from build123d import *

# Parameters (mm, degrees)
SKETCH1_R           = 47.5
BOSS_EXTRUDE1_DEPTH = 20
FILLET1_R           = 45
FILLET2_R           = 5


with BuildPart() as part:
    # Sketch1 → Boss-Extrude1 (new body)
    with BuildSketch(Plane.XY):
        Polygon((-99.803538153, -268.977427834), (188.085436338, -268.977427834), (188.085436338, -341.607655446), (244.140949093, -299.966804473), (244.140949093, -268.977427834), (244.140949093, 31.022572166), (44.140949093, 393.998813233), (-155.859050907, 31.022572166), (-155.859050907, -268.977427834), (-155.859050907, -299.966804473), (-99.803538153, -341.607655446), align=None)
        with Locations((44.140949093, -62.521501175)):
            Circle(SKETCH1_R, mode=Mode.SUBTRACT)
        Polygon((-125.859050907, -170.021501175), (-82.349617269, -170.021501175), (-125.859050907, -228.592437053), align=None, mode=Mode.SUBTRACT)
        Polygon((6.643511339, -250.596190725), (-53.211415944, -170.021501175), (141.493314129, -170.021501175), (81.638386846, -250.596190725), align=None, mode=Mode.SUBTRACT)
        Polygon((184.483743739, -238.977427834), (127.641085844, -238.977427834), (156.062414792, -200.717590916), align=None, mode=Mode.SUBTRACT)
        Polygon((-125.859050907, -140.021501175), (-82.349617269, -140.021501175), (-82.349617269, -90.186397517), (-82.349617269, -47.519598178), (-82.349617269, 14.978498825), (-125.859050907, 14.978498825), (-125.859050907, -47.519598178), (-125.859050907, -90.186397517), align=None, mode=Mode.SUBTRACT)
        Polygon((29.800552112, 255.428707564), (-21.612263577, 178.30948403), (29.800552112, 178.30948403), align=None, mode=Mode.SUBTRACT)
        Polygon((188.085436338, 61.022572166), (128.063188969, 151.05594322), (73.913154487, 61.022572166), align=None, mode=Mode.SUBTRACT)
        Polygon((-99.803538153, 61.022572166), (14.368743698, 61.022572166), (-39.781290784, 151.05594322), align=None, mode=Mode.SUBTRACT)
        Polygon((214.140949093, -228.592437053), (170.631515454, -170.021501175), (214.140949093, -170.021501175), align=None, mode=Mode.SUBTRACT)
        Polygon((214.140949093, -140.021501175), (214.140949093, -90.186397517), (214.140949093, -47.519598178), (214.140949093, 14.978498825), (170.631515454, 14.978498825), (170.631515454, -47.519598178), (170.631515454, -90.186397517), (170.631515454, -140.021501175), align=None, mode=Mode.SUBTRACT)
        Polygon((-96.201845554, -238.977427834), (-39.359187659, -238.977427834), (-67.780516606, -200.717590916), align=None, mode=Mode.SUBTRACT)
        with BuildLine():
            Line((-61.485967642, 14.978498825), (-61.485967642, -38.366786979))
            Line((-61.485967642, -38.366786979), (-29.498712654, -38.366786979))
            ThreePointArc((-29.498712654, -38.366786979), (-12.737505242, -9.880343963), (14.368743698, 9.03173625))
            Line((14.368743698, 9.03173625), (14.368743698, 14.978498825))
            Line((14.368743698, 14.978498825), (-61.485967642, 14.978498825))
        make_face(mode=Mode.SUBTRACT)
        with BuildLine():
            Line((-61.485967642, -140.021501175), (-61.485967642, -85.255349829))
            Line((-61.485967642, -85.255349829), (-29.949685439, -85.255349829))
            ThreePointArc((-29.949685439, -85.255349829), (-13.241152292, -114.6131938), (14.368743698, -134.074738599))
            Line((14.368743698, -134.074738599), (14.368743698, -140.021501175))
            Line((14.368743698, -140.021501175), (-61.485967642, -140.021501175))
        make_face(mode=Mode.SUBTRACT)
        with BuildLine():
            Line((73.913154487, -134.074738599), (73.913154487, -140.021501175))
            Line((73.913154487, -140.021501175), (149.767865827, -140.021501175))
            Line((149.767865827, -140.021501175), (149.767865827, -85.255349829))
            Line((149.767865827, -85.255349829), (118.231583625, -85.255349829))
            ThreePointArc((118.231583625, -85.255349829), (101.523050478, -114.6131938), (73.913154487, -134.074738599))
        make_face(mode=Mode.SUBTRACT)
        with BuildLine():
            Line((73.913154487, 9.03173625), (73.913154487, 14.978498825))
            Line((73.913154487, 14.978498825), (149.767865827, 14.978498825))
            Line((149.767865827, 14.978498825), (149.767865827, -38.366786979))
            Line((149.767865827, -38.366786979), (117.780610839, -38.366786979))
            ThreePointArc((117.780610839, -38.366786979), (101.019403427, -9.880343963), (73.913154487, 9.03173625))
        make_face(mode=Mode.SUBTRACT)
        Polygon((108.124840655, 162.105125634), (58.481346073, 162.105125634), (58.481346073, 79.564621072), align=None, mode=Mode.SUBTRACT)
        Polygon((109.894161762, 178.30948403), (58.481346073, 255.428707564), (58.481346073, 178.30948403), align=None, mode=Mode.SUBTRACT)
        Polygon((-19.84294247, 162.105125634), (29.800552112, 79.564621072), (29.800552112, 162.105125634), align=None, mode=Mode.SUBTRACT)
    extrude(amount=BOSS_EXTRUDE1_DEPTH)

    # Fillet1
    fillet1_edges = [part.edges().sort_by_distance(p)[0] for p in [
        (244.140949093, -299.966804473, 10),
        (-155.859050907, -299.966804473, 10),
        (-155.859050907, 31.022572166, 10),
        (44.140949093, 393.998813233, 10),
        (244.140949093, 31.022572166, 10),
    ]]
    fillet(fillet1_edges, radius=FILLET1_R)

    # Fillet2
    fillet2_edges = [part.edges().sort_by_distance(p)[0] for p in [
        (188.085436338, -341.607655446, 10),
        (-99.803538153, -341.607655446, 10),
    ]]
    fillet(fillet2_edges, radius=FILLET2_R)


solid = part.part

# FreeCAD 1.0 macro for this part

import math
import FreeCAD as App
import Part
import Sketcher
Q = App.Units.Quantity


def edges_at(feature, points):
    """Names of the edges that pass closest to the given points."""
    edges = feature.Shape.Edges
    near = lambda p: min(range(len(edges)), key=lambda i: edges[i].distToShape(Part.Vertex(*p))[0])
    return sorted({f"Edge{near(p) + 1}" for p in points})


def add_polygon(sketch, points):
    """Adds a closed chain of lines whose ends are joined by coincident constraints."""
    first, n = sketch.GeometryCount, len(points)
    for a, b in zip(points, points[1:] + points[:1]):
        sketch.addGeometry(Part.LineSegment(App.Vector(*a, 0), App.Vector(*b, 0)), False)
    for i in range(n):
        sketch.addConstraint(Sketcher.Constraint("Coincident", first + i, 2, first + (i + 1) % n, 1))

doc = App.newDocument("Part")
body = doc.addObject("PartDesign::Body", "Body")

# Sketch on XY plane
sketch1 = doc.addObject("Sketcher::SketchObject", "Sketch")
body.addObject(sketch1)
sketch1.AttachmentSupport = (doc.XY_Plane, [""])
sketch1.MapMode = "FlatFace"
add_polygon(sketch1, [(-100, -269), (188, -269), (188, -342), (244, -300), (244, 31), (44, 394), (-156, 31), (-156, -300), (-100, -342)])  # lines 0-8
add_polygon(sketch1, [(-126, -229), (-126, -170), (-82, -170)])  # lines 9-11
add_polygon(sketch1, [(-39, -239), (-96, -239), (-68, -201)])  # lines 12-14
add_polygon(sketch1, [(82, -251), (7, -251), (-53, -170), (141, -170)])  # lines 15-18
add_polygon(sketch1, [(-82, -140), (-126, -140), (-126, 15), (-82, 15)])  # lines 19-22
sketch1.addGeometry(Part.LineSegment(App.Vector(14, -140, 0), App.Vector(-61, -140, 0)), False)  # 23
sketch1.addGeometry(Part.LineSegment(App.Vector(-61, -140, 0), App.Vector(-61, -85, 0)), False)  # 24
sketch1.addGeometry(Part.LineSegment(App.Vector(-61, -85, 0), App.Vector(-30, -85, 0)), False)  # 25
sketch1.addGeometry(Part.ArcOfCircle(Part.Circle(App.Vector(44, -63, 0), App.Vector(0, 0, 1), 78), math.radians(-163), math.radians(-113)), False)  # 26
sketch1.addGeometry(Part.LineSegment(App.Vector(14, -134, 0), App.Vector(14, -140, 0)), False)  # 27
sketch1.addGeometry(Part.LineSegment(App.Vector(-61, -38, 0), App.Vector(-61, 15, 0)), False)  # 28
sketch1.addGeometry(Part.LineSegment(App.Vector(-61, 15, 0), App.Vector(14, 15, 0)), False)  # 29
sketch1.addGeometry(Part.LineSegment(App.Vector(14, 15, 0), App.Vector(14, 9, 0)), False)  # 30
sketch1.addGeometry(Part.ArcOfCircle(Part.Circle(App.Vector(44, -63, 0), App.Vector(0, 0, 1), 77), math.radians(113), math.radians(162)), False)  # 31
sketch1.addGeometry(Part.LineSegment(App.Vector(-29, -38, 0), App.Vector(-61, -38, 0)), False)  # 32
add_polygon(sketch1, [(156, -201), (184, -239), (128, -239)])  # lines 33-35
add_polygon(sketch1, [(214, -170), (214, -229), (171, -170)])  # lines 36-38
sketch1.addGeometry(Part.Circle(App.Vector(44, -63, 0), App.Vector(0, 0, 1), 48), False)  # 39
sketch1.addGeometry(Part.LineSegment(App.Vector(74, -140, 0), App.Vector(74, -134, 0)), False)  # 40
sketch1.addGeometry(Part.ArcOfCircle(Part.Circle(App.Vector(44, -63, 0), App.Vector(0, 0, 1), 78), math.radians(-67), math.radians(-17)), False)  # 41
sketch1.addGeometry(Part.LineSegment(App.Vector(118, -85, 0), App.Vector(150, -85, 0)), False)  # 42
sketch1.addGeometry(Part.LineSegment(App.Vector(150, -85, 0), App.Vector(150, -140, 0)), False)  # 43
sketch1.addGeometry(Part.LineSegment(App.Vector(150, -140, 0), App.Vector(74, -140, 0)), False)  # 44
sketch1.addGeometry(Part.ArcOfCircle(Part.Circle(App.Vector(44, -63, 0), App.Vector(0, 0, 1), 77), math.radians(18), math.radians(67)), False)  # 45
sketch1.addGeometry(Part.LineSegment(App.Vector(74, 9, 0), App.Vector(74, 15, 0)), False)  # 46
sketch1.addGeometry(Part.LineSegment(App.Vector(74, 15, 0), App.Vector(150, 15, 0)), False)  # 47
sketch1.addGeometry(Part.LineSegment(App.Vector(150, 15, 0), App.Vector(150, -38, 0)), False)  # 48
sketch1.addGeometry(Part.LineSegment(App.Vector(150, -38, 0), App.Vector(118, -38, 0)), False)  # 49
add_polygon(sketch1, [(214, 15), (214, -140), (171, -140), (171, 15)])  # lines 50-53
add_polygon(sketch1, [(14, 61), (-100, 61), (-40, 151)])  # lines 54-56
add_polygon(sketch1, [(30, 80), (-20, 162), (30, 162)])  # lines 57-59
add_polygon(sketch1, [(-22, 178), (30, 255), (30, 178)])  # lines 60-62
add_polygon(sketch1, [(58, 162), (108, 162), (58, 80)])  # lines 63-65
add_polygon(sketch1, [(128, 151), (188, 61), (74, 61)])  # lines 66-68
add_polygon(sketch1, [(58, 255), (110, 178), (58, 178)])  # lines 69-71
sketch1.addConstraint([
    Sketcher.Constraint("Coincident", 23, 2, 24, 1),
    Sketcher.Constraint("Coincident", 24, 2, 25, 1),
    Sketcher.Constraint("Coincident", 25, 2, 26, 1),
    Sketcher.Constraint("Coincident", 26, 2, 27, 1),
    Sketcher.Constraint("Coincident", 27, 2, 23, 1),
    Sketcher.Constraint("Coincident", 28, 2, 29, 1),
    Sketcher.Constraint("Coincident", 29, 2, 30, 1),
    Sketcher.Constraint("Coincident", 30, 2, 31, 1),
    Sketcher.Constraint("Coincident", 31, 2, 32, 1),
    Sketcher.Constraint("Coincident", 32, 2, 28, 1),
    Sketcher.Constraint("Coincident", 40, 2, 41, 1),
    Sketcher.Constraint("Coincident", 41, 2, 42, 1),
    Sketcher.Constraint("Coincident", 42, 2, 43, 1),
    Sketcher.Constraint("Coincident", 43, 2, 44, 1),
    Sketcher.Constraint("Coincident", 44, 2, 40, 1),
    Sketcher.Constraint("Coincident", 45, 2, 46, 1),
    Sketcher.Constraint("Coincident", 46, 2, 47, 1),
    Sketcher.Constraint("Coincident", 47, 2, 48, 1),
    Sketcher.Constraint("Coincident", 48, 2, 49, 1),
    Sketcher.Constraint("Coincident", 49, 2, 45, 1),
    Sketcher.Constraint("Horizontal", 0),
    Sketcher.Constraint("Vertical", 1),
    Sketcher.Constraint("Vertical", 3),
    Sketcher.Constraint("Vertical", 6),
    Sketcher.Constraint("Vertical", 8),
    Sketcher.Constraint("Vertical", 9),
    Sketcher.Constraint("Horizontal", 10),
    Sketcher.Constraint("Horizontal", 12),
    Sketcher.Constraint("Horizontal", 15),
    Sketcher.Constraint("Horizontal", 17),
    Sketcher.Constraint("Horizontal", 19),
    Sketcher.Constraint("Vertical", 20),
    Sketcher.Constraint("Horizontal", 21),
    Sketcher.Constraint("Vertical", 22),
    Sketcher.Constraint("Horizontal", 23),
    Sketcher.Constraint("Vertical", 24),
    Sketcher.Constraint("Horizontal", 25),
    Sketcher.Constraint("Vertical", 27),
    Sketcher.Constraint("Vertical", 28),
    Sketcher.Constraint("Horizontal", 29),
    Sketcher.Constraint("Vertical", 30),
    Sketcher.Constraint("Horizontal", 32),
    Sketcher.Constraint("Horizontal", 34),
    Sketcher.Constraint("Vertical", 36),
    Sketcher.Constraint("Horizontal", 38),
    Sketcher.Constraint("Vertical", 40),
    Sketcher.Constraint("Horizontal", 42),
    Sketcher.Constraint("Vertical", 43),
    Sketcher.Constraint("Horizontal", 44),
    Sketcher.Constraint("Vertical", 46),
    Sketcher.Constraint("Horizontal", 47),
    Sketcher.Constraint("Vertical", 48),
    Sketcher.Constraint("Horizontal", 49),
    Sketcher.Constraint("Vertical", 50),
    Sketcher.Constraint("Horizontal", 51),
    Sketcher.Constraint("Vertical", 52),
    Sketcher.Constraint("Horizontal", 53),
    Sketcher.Constraint("Horizontal", 54),
    Sketcher.Constraint("Horizontal", 58),
    Sketcher.Constraint("Vertical", 59),
    Sketcher.Constraint("Vertical", 61),
    Sketcher.Constraint("Horizontal", 62),
    Sketcher.Constraint("Horizontal", 63),
    Sketcher.Constraint("Vertical", 65),
    Sketcher.Constraint("Horizontal", 67),
    Sketcher.Constraint("Horizontal", 70),
    Sketcher.Constraint("Vertical", 71),
    Sketcher.Constraint("Coincident", 31, 3, 26, 3),
    Sketcher.Constraint("Coincident", 39, 3, 26, 3),
    Sketcher.Constraint("Coincident", 41, 3, 26, 3),
    Sketcher.Constraint("Coincident", 45, 3, 26, 3),
    Sketcher.Constraint("Equal", 26, 31),
    Sketcher.Constraint("Equal", 31, 41),
    Sketcher.Constraint("Equal", 41, 45),
    Sketcher.Constraint("Perpendicular", 7, 11),
    Sketcher.Constraint("Parallel", 11, 13),
    Sketcher.Constraint("Perpendicular", 2, 14),
    Sketcher.Constraint("Parallel", 14, 16),
    Sketcher.Constraint("Parallel", 13, 18),
    Sketcher.Constraint("Parallel", 16, 33),
    Sketcher.Constraint("Parallel", 18, 35),
    Sketcher.Constraint("Parallel", 33, 37),
    Sketcher.Constraint("Parallel", 56, 57),
    Sketcher.Constraint("Parallel", 55, 60),
    Sketcher.Constraint("Parallel", 64, 68),
    Sketcher.Constraint("Parallel", 66, 69),
    Sketcher.Constraint("Horizontal", 3, 2, 5, 2),
    Sketcher.Constraint("Horizontal", 2, 2, 6, 2),
    Sketcher.Constraint("Horizontal", 1, 2, 7, 2),
    Sketcher.Constraint("Horizontal", 10, 2, 16, 2),
    Sketcher.Constraint("Horizontal", 22, 2, 23, 2),
    Sketcher.Constraint("Horizontal", 21, 2, 28, 2),
    Sketcher.Constraint("Horizontal", 14, 2, 33, 2),
    Sketcher.Constraint("Horizontal", 13, 2, 35, 2),
    Sketcher.Constraint("Horizontal", 11, 2, 36, 2),
    Sketcher.Constraint("Horizontal", 17, 2, 37, 2),
    Sketcher.Constraint("Horizontal", 26, 2, 40, 2),
    Sketcher.Constraint("Horizontal", 25, 2, 41, 2),
    Sketcher.Constraint("Horizontal", 27, 2, 43, 2),
    Sketcher.Constraint("Horizontal", 30, 2, 45, 2),
    Sketcher.Constraint("Horizontal", 29, 2, 46, 2),
    Sketcher.Constraint("Horizontal", 32, 2, 48, 2),
    Sketcher.Constraint("Horizontal", 44, 2, 50, 2),
    Sketcher.Constraint("Horizontal", 47, 2, 52, 2),
    Sketcher.Constraint("Horizontal", 58, 2, 63, 2),
    Sketcher.Constraint("Horizontal", 59, 2, 64, 2),
    Sketcher.Constraint("Horizontal", 56, 2, 66, 2),
    Sketcher.Constraint("Horizontal", 55, 2, 68, 2),
    Sketcher.Constraint("Horizontal", 62, 2, 69, 2),
    Sketcher.Constraint("Horizontal", 60, 2, 71, 2),
    Sketcher.Constraint("Vertical", 45, 3, 4, 2),
    Sketcher.Constraint("Vertical", 11, 2, 19, 2),
    Sketcher.Constraint("Vertical", 10, 2, 21, 2),
    Sketcher.Constraint("Vertical", 24, 2, 28, 2),
    Sketcher.Constraint("Vertical", 27, 2, 29, 2),
    Sketcher.Constraint("Vertical", 43, 2, 47, 2),
    Sketcher.Constraint("Vertical", 38, 2, 50, 2),
    Sketcher.Constraint("Vertical", 37, 2, 51, 2),
    Sketcher.Constraint("Vertical", 8, 2, 54, 2),
    Sketcher.Constraint("Vertical", 30, 2, 56, 2),
    Sketcher.Constraint("Vertical", 59, 2, 60, 2),
    Sketcher.Constraint("Vertical", 1, 2, 66, 2),
    Sketcher.Constraint("Vertical", 46, 2, 67, 2),
    Sketcher.Constraint("Vertical", 65, 2, 70, 2),
    Sketcher.Constraint("Equal", 21, 38),
    Sketcher.Constraint("Equal", 25, 42),
    Sketcher.Constraint("Equal", 58, 63),
    Sketcher.Constraint("Equal", 54, 67),
    Sketcher.Constraint("Equal", 27, 30),
    Sketcher.Constraint("Diameter", 39, Q("95 mm")),
    Sketcher.Constraint("Radius", 26, Q("77.5 mm")),
    Sketcher.Constraint("DistanceY", 20, 1, 20, 2, Q("155 mm")),
    Sketcher.Constraint("Distance", 56, Q("105.063001 mm")),
    Sketcher.Constraint("DistanceX", 17, 1, 17, 2, Q("194.70473 mm")),
    Sketcher.Constraint("DistanceX", 23, 2, 23, 1, Q("75.854711 mm")),
    Sketcher.Constraint("DistanceX", 54, 2, 54, 1, Q("114.172282 mm")),
    Sketcher.Constraint("DistanceY", 24, 1, 24, 2, Q("54.766151 mm")),
    Sketcher.Constraint("DistanceY", 26, 3, -1, 1, Q("62.521501 mm")),
    Sketcher.Constraint("DistanceY", 9, 2, -1, 1, Q("170.021501 mm")),
    Sketcher.Constraint("Distance", 4, Q("414.429429 mm")),
    Sketcher.Constraint("Distance", 11, Q("72.963178 mm")),
    Sketcher.Constraint("Distance", 13, Q("47.661169 mm")),
    Sketcher.Constraint("Distance", 57, Q("96.31932 mm")),
    Sketcher.Constraint("Distance", 60, Q("92.685772 mm")),
    Sketcher.Constraint("DistanceX", 0, 1, 0, 2, Q("287.888974 mm")),
    Sketcher.Constraint("DistanceX", 10, 1, 10, 2, Q("43.509434 mm")),
    Sketcher.Constraint("DistanceX", 15, 2, 15, 1, Q("74.994876 mm")),
    Sketcher.Constraint("DistanceX", 32, 2, 32, 1, Q("31.987255 mm")),
    Sketcher.Constraint("DistanceX", 58, 1, 58, 2, Q("49.643495 mm")),
    Sketcher.Constraint("DistanceY", 1, 2, 1, 1, Q("72.630228 mm")),
    Sketcher.Constraint("DistanceY", 3, 1, 3, 2, Q("330.989377 mm")),
    Sketcher.Constraint("DistanceX", -1, 1, 26, 3, Q("44.140949 mm")),
    Sketcher.Constraint("DistanceX", -1, 1, 2, 2, Q("244.140949 mm")),
    Sketcher.Constraint("DistanceX", 9, 2, -1, 1, Q("125.859051 mm")),
    Sketcher.Constraint("DistanceY", 13, 2, -1, 1, Q("200.717591 mm")),
    Sketcher.Constraint("DistanceX", -1, 1, 15, 2, Q("6.643511 mm")),
    Sketcher.Constraint("DistanceX", -1, 1, 36, 2, Q("214.140949 mm")),
    Sketcher.Constraint("DistanceY", -1, 1, 59, 2, Q("79.564621 mm")),
    Sketcher.Constraint("DistanceX", -1, 1, 63, 2, Q("108.124841 mm")),
    Sketcher.Constraint("DistanceY", 0, 2, -1, 1, Q("268.977428 mm")),
    Sketcher.Constraint("DistanceX", 12, 2, -1, 1, Q("96.201846 mm")),
    Sketcher.Constraint("DistanceX", -1, 1, 33, 2, Q("184.483744 mm")),
    Sketcher.Constraint("DistanceY", -1, 1, 54, 2, Q("61.022572 mm")),
    Sketcher.Constraint("DistanceX", 57, 2, -1, 1, Q("19.842942 mm")),
    Sketcher.Constraint("DistanceY", -1, 1, 60, 2, Q("255.428708 mm")),
])
pad1 = doc.addObject("PartDesign::Pad", "Pad")
body.addObject(pad1)
pad1.Profile = sketch1
pad1.Length = 20
doc.recompute()

fillet = doc.addObject("PartDesign::Fillet", "Fillet")
body.addObject(fillet)
fillet.Base = (pad1, edges_at(pad1, [
    (244.141, -299.967, 10),
    (-155.859, -299.967, 10),
    (-155.859, 31.023, 10),
    (44.141, 393.999, 10),
    (244.141, 31.023, 10),
]))
fillet.Radius = 45
doc.recompute()

fillet2 = doc.addObject("PartDesign::Fillet", "Fillet001")
body.addObject(fillet2)
fillet2.Base = (fillet, edges_at(fillet, [(188.085, -341.608, 10), (-99.804, -341.608, 10)]))
fillet2.Radius = 5

doc.recompute()
